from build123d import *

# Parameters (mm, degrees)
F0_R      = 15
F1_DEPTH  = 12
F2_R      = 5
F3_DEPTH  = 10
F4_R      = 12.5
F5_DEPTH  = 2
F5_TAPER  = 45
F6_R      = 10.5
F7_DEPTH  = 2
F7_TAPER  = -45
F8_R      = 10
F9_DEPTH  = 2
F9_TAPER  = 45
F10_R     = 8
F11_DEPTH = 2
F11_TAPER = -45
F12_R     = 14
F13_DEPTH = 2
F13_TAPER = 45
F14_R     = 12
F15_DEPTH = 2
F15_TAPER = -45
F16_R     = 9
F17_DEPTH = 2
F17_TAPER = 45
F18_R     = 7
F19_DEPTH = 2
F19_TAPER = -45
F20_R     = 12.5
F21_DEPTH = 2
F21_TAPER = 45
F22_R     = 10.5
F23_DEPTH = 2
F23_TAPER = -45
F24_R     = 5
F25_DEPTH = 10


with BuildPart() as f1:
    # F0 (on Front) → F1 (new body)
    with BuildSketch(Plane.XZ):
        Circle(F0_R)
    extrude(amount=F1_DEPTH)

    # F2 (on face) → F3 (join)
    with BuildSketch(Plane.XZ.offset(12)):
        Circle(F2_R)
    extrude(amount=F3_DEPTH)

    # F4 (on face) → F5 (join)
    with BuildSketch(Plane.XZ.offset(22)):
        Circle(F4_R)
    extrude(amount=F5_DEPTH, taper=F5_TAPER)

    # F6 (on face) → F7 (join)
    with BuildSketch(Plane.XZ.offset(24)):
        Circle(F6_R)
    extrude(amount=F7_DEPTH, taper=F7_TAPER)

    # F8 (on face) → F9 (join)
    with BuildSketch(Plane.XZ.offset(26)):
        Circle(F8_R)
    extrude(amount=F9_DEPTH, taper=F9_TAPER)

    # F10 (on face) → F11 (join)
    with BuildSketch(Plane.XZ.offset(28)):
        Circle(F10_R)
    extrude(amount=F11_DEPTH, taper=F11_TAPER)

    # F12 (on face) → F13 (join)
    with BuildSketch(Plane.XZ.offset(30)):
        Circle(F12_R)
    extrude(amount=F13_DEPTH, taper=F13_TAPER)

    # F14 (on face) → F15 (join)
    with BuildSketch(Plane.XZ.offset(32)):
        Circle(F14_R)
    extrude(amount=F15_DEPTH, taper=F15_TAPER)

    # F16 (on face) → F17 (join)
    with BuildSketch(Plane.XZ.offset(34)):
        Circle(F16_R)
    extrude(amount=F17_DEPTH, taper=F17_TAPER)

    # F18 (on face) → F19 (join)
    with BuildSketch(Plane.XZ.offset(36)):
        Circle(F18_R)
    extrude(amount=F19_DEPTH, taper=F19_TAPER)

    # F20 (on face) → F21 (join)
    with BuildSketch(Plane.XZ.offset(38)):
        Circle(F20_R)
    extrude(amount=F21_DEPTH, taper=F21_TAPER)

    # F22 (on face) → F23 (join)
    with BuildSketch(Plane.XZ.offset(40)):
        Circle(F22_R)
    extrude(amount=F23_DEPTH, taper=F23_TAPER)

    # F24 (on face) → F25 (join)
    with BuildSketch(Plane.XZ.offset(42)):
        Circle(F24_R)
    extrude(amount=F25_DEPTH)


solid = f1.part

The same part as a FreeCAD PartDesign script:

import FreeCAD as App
import Part
import Sketcher
Q = App.Units.Quantity

doc = App.newDocument("Part")
body = doc.addObject("PartDesign::Body", "Body")

sketch1 = doc.addObject("Sketcher::SketchObject", "Sketch")
body.addObject(sketch1)
sketch1.AttachmentSupport = (doc.XZ_Plane, [""])
sketch1.MapMode = "FlatFace"
sketch1.addGeometry(Part.Circle(App.Vector(0, 0, 0), App.Vector(0, 0, 1), 15), False)
sketch1.addConstraint([
    Sketcher.Constraint("Coincident", 0, 3, -1, 1),
    Sketcher.Constraint("Diameter", 0, Q("30 mm")),
])
pad1 = doc.addObject("PartDesign::Pad", "Pad")
body.addObject(pad1)
pad1.Profile = sketch1
pad1.Length = 12

sketch2 = doc.addObject("Sketcher::SketchObject", "Sketch001")
body.addObject(sketch2)
sketch2.AttachmentSupport = (doc.XZ_Plane, [""])
sketch2.MapMode = "FlatFace"
sketch2.AttachmentOffset = App.Placement(App.Vector(0, 0, 12), App.Rotation())
sketch2.addGeometry(Part.Circle(App.Vector(0, 0, 0), App.Vector(0, 0, 1), 5), False)
sketch2.addConstraint([
    Sketcher.Constraint("Coincident", 0, 3, -1, 1),
    Sketcher.Constraint("Diameter", 0, Q("10 mm")),
])
pad2 = doc.addObject("PartDesign::Pad", "Pad001")
body.addObject(pad2)
pad2.Profile = sketch2
pad2.Length = 10

sketch3 = doc.addObject("Sketcher::SketchObject", "Sketch002")
body.addObject(sketch3)
sketch3.AttachmentSupport = (doc.XZ_Plane, [""])
sketch3.MapMode = "FlatFace"
sketch3.AttachmentOffset = App.Placement(App.Vector(0, 0, 22), App.Rotation())
sketch3.addGeometry(Part.Circle(App.Vector(0, 0, 0), App.Vector(0, 0, 1), 12.5), False)
sketch3.addConstraint([
    Sketcher.Constraint("Coincident", 0, 3, -1, 1),
    Sketcher.Constraint("Diameter", 0, Q("25 mm")),
])
pad3 = doc.addObject("PartDesign::Pad", "Pad002")
body.addObject(pad3)
pad3.Profile = sketch3
pad3.Length = 2
pad3.TaperAngle = -45

sketch4 = doc.addObject("Sketcher::SketchObject", "Sketch003")
body.addObject(sketch4)
sketch4.AttachmentSupport = (doc.XZ_Plane, [""])
sketch4.MapMode = "FlatFace"
sketch4.AttachmentOffset = App.Placement(App.Vector(0, 0, 24), App.Rotation())
sketch4.addGeometry(Part.Circle(App.Vector(0, 0, 0), App.Vector(0, 0, 1), 10.5), False)
sketch4.addConstraint([
    Sketcher.Constraint("Coincident", 0, 3, -1, 1),
    Sketcher.Constraint("Diameter", 0, Q("21 mm")),
])
pad4 = doc.addObject("PartDesign::Pad", "Pad003")
body.addObject(pad4)
pad4.Profile = sketch4
pad4.Length = 2
pad4.TaperAngle = 45

sketch5 = doc.addObject("Sketcher::SketchObject", "Sketch004")
body.addObject(sketch5)
sketch5.AttachmentSupport = (doc.XZ_Plane, [""])
sketch5.MapMode = "FlatFace"
sketch5.AttachmentOffset = App.Placement(App.Vector(0, 0, 26), App.Rotation())
sketch5.addGeometry(Part.Circle(App.Vector(0, 0, 0), App.Vector(0, 0, 1), 10), False)
sketch5.addConstraint([
    Sketcher.Constraint("Coincident", 0, 3, -1, 1),
    Sketcher.Constraint("Diameter", 0, Q("20 mm")),
])
pad5 = doc.addObject("PartDesign::Pad", "Pad004")
body.addObject(pad5)
pad5.Profile = sketch5
pad5.Length = 2
pad5.TaperAngle = -45

sketch6 = doc.addObject("Sketcher::SketchObject", "Sketch005")
body.addObject(sketch6)
sketch6.AttachmentSupport = (doc.XZ_Plane, [""])
sketch6.MapMode = "FlatFace"
sketch6.AttachmentOffset = App.Placement(App.Vector(0, 0, 28), App.Rotation())
sketch6.addGeometry(Part.Circle(App.Vector(0, 0, 0), App.Vector(0, 0, 1), 8), False)
sketch6.addConstraint([
    Sketcher.Constraint("Coincident", 0, 3, -1, 1),
    Sketcher.Constraint("Diameter", 0, Q("16 mm")),
])
pad6 = doc.addObject("PartDesign::Pad", "Pad005")
body.addObject(pad6)
pad6.Profile = sketch6
pad6.Length = 2
pad6.TaperAngle = 45

sketch7 = doc.addObject("Sketcher::SketchObject", "Sketch006")
body.addObject(sketch7)
sketch7.AttachmentSupport = (doc.XZ_Plane, [""])
sketch7.MapMode = "FlatFace"
sketch7.AttachmentOffset = App.Placement(App.Vector(0, 0, 30), App.Rotation())
sketch7.addGeometry(Part.Circle(App.Vector(0, 0, 0), App.Vector(0, 0, 1), 14), False)
sketch7.addConstraint([
    Sketcher.Constraint("Coincident", 0, 3, -1, 1),
    Sketcher.Constraint("Diameter", 0, Q("28 mm")),
])
pad7 = doc.addObject("PartDesign::Pad", "Pad006")
body.addObject(pad7)
pad7.Profile = sketch7
pad7.Length = 2
pad7.TaperAngle = -45

sketch8 = doc.addObject("Sketcher::SketchObject", "Sketch007")
body.addObject(sketch8)
sketch8.AttachmentSupport = (doc.XZ_Plane, [""])
sketch8.MapMode = "FlatFace"
sketch8.AttachmentOffset = App.Placement(App.Vector(0, 0, 32), App.Rotation())
sketch8.addGeometry(Part.Circle(App.Vector(0, 0, 0), App.Vector(0, 0, 1), 12), False)
sketch8.addConstraint([
    Sketcher.Constraint("Coincident", 0, 3, -1, 1),
    Sketcher.Constraint("Diameter", 0, Q("24 mm")),
])
pad8 = doc.addObject("PartDesign::Pad", "Pad007")
body.addObject(pad8)
pad8.Profile = sketch8
pad8.Length = 2
pad8.TaperAngle = 45

sketch9 = doc.addObject("Sketcher::SketchObject", "Sketch008")
body.addObject(sketch9)
sketch9.AttachmentSupport = (doc.XZ_Plane, [""])
sketch9.MapMode = "FlatFace"
sketch9.AttachmentOffset = App.Placement(App.Vector(0, 0, 34), App.Rotation())
sketch9.addGeometry(Part.Circle(App.Vector(0, 0, 0), App.Vector(0, 0, 1), 9), False)
sketch9.addConstraint([
    Sketcher.Constraint("Coincident", 0, 3, -1, 1),
    Sketcher.Constraint("Diameter", 0, Q("18 mm")),
])
pad9 = doc.addObject("PartDesign::Pad", "Pad008")
body.addObject(pad9)
pad9.Profile = sketch9
pad9.Length = 2
pad9.TaperAngle = -45

sketch10 = doc.addObject("Sketcher::SketchObject", "Sketch009")
body.addObject(sketch10)
sketch10.AttachmentSupport = (doc.XZ_Plane, [""])
sketch10.MapMode = "FlatFace"
sketch10.AttachmentOffset = App.Placement(App.Vector(0, 0, 36), App.Rotation())
sketch10.addGeometry(Part.Circle(App.Vector(0, 0, 0), App.Vector(0, 0, 1), 7), False)
sketch10.addConstraint([
    Sketcher.Constraint("Coincident", 0, 3, -1, 1),
    Sketcher.Constraint("Diameter", 0, Q("14 mm")),
])
pad10 = doc.addObject("PartDesign::Pad", "Pad009")
body.addObject(pad10)
pad10.Profile = sketch10
pad10.Length = 2
pad10.TaperAngle = 45

sketch11 = doc.addObject("Sketcher::SketchObject", "Sketch010")
body.addObject(sketch11)
sketch11.AttachmentSupport = (doc.XZ_Plane, [""])
sketch11.MapMode = "FlatFace"
sketch11.AttachmentOffset = App.Placement(App.Vector(0, 0, 38), App.Rotation())
sketch11.addGeometry(Part.Circle(App.Vector(0, 0, 0), App.Vector(0, 0, 1), 12.5), False)
sketch11.addConstraint([
    Sketcher.Constraint("Coincident", 0, 3, -1, 1),
    Sketcher.Constraint("Diameter", 0, Q("25 mm")),
])
pad11 = doc.addObject("PartDesign::Pad", "Pad010")
body.addObject(pad11)
pad11.Profile = sketch11
pad11.Length = 2
pad11.TaperAngle = -45

sketch12 = doc.addObject("Sketcher::SketchObject", "Sketch011")
body.addObject(sketch12)
sketch12.AttachmentSupport = (doc.XZ_Plane, [""])
sketch12.MapMode = "FlatFace"
sketch12.AttachmentOffset = App.Placement(App.Vector(0, 0, 40), App.Rotation())
sketch12.addGeometry(Part.Circle(App.Vector(0, 0, 0), App.Vector(0, 0, 1), 10.5), False)
sketch12.addConstraint([
    Sketcher.Constraint("Coincident", 0, 3, -1, 1),
    Sketcher.Constraint("Diameter", 0, Q("21 mm")),
])
pad12 = doc.addObject("PartDesign::Pad", "Pad011")
body.addObject(pad12)
pad12.Profile = sketch12
pad12.Length = 2
pad12.TaperAngle = 45

sketch13 = doc.addObject("Sketcher::SketchObject", "Sketch012")
body.addObject(sketch13)
sketch13.AttachmentSupport = (doc.XZ_Plane, [""])
sketch13.MapMode = "FlatFace"
sketch13.AttachmentOffset = App.Placement(App.Vector(0, 0, 42), App.Rotation())
sketch13.addGeometry(Part.Circle(App.Vector(0, 0, 0), App.Vector(0, 0, 1), 5), False)
sketch13.addConstraint([
    Sketcher.Constraint("Coincident", 0, 3, -1, 1),
    Sketcher.Constraint("Diameter", 0, Q("10 mm")),
])
pad13 = doc.addObject("PartDesign::Pad", "Pad012")
body.addObject(pad13)
pad13.Profile = sketch13
pad13.Length = 10

doc.recompute()
